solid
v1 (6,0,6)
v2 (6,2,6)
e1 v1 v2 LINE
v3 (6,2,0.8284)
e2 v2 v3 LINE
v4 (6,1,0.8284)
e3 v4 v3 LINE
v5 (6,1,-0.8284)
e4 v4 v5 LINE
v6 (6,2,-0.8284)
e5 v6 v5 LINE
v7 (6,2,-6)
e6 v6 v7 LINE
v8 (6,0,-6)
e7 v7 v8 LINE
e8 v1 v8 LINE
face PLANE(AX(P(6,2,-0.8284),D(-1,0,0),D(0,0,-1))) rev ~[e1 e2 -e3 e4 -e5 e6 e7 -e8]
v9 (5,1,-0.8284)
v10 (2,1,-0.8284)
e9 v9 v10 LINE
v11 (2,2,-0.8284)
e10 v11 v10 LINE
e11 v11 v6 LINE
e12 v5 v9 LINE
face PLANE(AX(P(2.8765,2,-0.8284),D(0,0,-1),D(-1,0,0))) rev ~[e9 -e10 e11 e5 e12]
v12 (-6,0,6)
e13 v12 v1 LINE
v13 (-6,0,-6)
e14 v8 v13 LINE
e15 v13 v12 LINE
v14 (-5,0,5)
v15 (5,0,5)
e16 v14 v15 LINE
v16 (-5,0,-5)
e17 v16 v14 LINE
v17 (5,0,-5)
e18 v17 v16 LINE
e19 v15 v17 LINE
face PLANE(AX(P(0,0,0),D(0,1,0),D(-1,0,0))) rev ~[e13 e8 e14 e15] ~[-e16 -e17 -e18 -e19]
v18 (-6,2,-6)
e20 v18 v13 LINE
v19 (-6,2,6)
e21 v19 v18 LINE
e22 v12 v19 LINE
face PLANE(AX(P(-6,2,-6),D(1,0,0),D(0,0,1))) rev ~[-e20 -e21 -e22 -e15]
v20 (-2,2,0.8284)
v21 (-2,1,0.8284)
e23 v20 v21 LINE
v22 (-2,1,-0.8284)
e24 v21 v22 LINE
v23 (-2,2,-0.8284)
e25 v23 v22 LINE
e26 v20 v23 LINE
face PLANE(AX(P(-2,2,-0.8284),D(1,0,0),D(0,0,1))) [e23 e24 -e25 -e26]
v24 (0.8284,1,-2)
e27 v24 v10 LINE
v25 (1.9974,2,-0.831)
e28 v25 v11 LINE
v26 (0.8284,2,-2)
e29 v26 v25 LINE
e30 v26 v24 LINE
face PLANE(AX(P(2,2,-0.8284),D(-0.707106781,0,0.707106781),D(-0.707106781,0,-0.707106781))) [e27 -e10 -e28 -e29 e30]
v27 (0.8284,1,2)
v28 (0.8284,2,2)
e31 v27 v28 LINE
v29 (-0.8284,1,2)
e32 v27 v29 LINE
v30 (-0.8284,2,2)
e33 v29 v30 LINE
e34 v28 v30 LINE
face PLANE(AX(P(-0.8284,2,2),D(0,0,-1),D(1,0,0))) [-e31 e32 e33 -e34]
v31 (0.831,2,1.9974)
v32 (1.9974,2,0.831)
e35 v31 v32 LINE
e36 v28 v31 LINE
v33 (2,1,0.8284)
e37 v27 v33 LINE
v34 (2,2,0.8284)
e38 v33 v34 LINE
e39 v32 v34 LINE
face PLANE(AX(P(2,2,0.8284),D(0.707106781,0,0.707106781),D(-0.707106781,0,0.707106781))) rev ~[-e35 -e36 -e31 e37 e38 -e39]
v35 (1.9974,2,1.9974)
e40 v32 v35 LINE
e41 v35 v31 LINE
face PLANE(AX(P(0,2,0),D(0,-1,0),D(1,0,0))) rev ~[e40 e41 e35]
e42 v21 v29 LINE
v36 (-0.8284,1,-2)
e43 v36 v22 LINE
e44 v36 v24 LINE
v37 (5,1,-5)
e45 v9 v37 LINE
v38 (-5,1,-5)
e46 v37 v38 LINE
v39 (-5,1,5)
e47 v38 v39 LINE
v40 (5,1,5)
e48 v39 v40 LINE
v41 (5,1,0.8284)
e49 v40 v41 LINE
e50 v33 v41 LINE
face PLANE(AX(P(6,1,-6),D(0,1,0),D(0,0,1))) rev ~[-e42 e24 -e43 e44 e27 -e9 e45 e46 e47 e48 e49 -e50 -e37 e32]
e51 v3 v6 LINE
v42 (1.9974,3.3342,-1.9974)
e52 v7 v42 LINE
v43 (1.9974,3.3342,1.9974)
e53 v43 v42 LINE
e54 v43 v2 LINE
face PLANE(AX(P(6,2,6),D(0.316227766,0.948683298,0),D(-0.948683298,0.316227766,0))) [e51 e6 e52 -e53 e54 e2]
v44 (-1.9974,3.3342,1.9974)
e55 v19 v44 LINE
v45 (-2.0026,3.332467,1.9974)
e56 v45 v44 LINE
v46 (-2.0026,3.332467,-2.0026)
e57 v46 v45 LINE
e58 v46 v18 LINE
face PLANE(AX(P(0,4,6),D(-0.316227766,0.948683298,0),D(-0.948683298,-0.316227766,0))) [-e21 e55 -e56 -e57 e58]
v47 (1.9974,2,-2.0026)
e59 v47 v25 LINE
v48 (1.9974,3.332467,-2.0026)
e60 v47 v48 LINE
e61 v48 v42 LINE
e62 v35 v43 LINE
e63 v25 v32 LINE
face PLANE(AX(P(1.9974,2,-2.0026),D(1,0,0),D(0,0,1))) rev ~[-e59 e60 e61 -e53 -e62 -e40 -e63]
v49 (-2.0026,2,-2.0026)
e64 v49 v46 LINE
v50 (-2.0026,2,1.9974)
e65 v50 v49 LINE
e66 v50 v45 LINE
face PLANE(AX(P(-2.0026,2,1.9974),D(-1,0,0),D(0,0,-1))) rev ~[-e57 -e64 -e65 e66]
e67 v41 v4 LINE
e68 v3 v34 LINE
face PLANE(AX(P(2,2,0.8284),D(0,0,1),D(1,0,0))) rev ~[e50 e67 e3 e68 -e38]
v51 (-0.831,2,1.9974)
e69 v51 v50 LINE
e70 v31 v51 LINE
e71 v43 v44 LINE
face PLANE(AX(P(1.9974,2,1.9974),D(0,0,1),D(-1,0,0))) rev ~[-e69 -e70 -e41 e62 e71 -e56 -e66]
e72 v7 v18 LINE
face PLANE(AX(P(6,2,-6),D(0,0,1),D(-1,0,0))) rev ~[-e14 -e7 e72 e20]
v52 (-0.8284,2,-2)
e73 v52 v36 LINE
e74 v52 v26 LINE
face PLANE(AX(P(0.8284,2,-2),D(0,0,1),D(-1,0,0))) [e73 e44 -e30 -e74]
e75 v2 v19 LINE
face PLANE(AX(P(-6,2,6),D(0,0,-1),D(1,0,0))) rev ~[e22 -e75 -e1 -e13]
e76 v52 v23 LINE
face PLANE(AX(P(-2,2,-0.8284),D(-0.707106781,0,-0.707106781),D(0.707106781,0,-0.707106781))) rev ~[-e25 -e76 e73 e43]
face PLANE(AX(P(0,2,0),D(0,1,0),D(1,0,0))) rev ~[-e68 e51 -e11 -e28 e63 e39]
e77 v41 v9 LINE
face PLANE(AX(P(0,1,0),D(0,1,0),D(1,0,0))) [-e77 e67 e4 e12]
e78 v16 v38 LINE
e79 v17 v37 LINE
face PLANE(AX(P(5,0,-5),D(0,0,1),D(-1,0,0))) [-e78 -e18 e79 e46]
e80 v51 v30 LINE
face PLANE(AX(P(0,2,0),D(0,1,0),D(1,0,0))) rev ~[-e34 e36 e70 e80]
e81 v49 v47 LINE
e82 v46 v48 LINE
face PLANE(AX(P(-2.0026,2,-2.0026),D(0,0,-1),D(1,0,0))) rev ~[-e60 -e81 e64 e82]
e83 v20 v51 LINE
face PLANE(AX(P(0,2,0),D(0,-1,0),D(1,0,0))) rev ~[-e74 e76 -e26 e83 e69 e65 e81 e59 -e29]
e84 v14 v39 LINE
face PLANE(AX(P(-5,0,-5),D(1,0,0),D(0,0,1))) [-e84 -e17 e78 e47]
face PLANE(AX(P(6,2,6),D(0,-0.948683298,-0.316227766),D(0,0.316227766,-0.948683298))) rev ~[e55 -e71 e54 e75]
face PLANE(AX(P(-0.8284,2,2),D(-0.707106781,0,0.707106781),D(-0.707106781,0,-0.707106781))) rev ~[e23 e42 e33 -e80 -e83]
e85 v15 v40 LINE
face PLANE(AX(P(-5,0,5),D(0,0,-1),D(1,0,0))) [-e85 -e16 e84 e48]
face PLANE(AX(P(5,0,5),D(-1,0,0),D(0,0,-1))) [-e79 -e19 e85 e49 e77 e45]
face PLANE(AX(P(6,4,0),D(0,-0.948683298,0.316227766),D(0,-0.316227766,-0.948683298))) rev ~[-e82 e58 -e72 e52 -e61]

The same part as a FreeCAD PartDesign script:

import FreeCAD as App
import Part
import Sketcher
Q = App.Units.Quantity

doc = App.newDocument("Part")
params = doc.addObject("Spreadsheet::Sheet", "Params")
for row, (alias, value) in enumerate([
    ("sketch1_width", "12 mm"),
    ("sketch1_width2", "10 mm"),
    ("pad1_length", "2 mm"),
    ("sketch2_width", "1 mm"),
    ("sketch2_height", "12 mm"),
    ("pad2_length", "11.5 mm"),
    ("pocket2_length", "1 mm"),
    ("sketch5_width", "12 mm"),
    ("pad3_length", "25 mm"),
    ("pocket3_length", "23.25 mm"),
    ("pocket4_length", "41.75 mm"),
    ("sketch8_width", "4 mm"),
    ("pocket5_length", "105 mm"),
], start=1):
    params.set(f"A{row}", alias)
    params.set(f"B{row}", "=" + value)
    params.setAlias(f"B{row}", alias)

body = doc.addObject("PartDesign::Body", "Body")

# Sketch on XZ plane
sketch1 = body.newObject("Sketcher::SketchObject", "Sketch")
sketch1.AttachmentSupport = (doc.getObject("XZ_Plane"), [""])
sketch1.MapMode = "FlatFace"
sketch1.addGeometry([
    Part.LineSegment(App.Vector(-6, -6, 0), App.Vector(-6, 6, 0)),  # 0
    Part.LineSegment(App.Vector(-6, 6, 0), App.Vector(6, 6, 0)),  # 1
    Part.LineSegment(App.Vector(6, 6, 0), App.Vector(6, -6, 0)),  # 2
    Part.LineSegment(App.Vector(6, -6, 0), App.Vector(-6, -6, 0)),  # 3
    Part.LineSegment(App.Vector(5, 5, 0), App.Vector(-5, 5, 0)),  # 4
    Part.LineSegment(App.Vector(-5, 5, 0), App.Vector(-5, -5, 0)),  # 5
    Part.LineSegment(App.Vector(-5, -5, 0), App.Vector(5, -5, 0)),  # 6
    Part.LineSegment(App.Vector(5, -5, 0), App.Vector(5, 5, 0)),  # 7
], False)
sketch1.addConstraint([
    Sketcher.Constraint("Coincident", 0, 2, 1, 1),
    Sketcher.Constraint("Coincident", 1, 2, 2, 1),
    Sketcher.Constraint("Coincident", 2, 2, 3, 1),
    Sketcher.Constraint("Coincident", 3, 2, 0, 1),
    Sketcher.Constraint("Coincident", 4, 2, 5, 1),
    Sketcher.Constraint("Coincident", 5, 2, 6, 1),
    Sketcher.Constraint("Coincident", 6, 2, 7, 1),
    Sketcher.Constraint("Coincident", 7, 2, 4, 1),
    Sketcher.Constraint("Vertical", 0),
    Sketcher.Constraint("Horizontal", 1),
    Sketcher.Constraint("Vertical", 2),
    Sketcher.Constraint("Horizontal", 3),
    Sketcher.Constraint("Horizontal", 4),
    Sketcher.Constraint("Vertical", 5),
    Sketcher.Constraint("Horizontal", 6),
    Sketcher.Constraint("Vertical", 7),
    Sketcher.Constraint("Symmetric", 0, 2, 2, 2, -1, 1),
    Sketcher.Constraint("Symmetric", 4, 2, 6, 2, -1, 1),
    Sketcher.Constraint("Equal", 3, 0),
    Sketcher.Constraint("Equal", 6, 5),
    Sketcher.Constraint("DistanceX", 1, 1, 1, 2, Q("12 mm")),
    Sketcher.Constraint("DistanceX", 4, 2, 4, 1, Q("10 mm")),
])
sketch1.setExpression("Constraints[20]", "Params.sketch1_width")
sketch1.setExpression("Constraints[21]", "Params.sketch1_width2")
pad1 = body.newObject("PartDesign::Pad", "Pad")
pad1.Profile = sketch1
pad1.setExpression("Length", "Params.pad1_length")
pad1.Reversed = True

# Sketch on YZ plane
sketch2 = body.newObject("Sketcher::SketchObject", "Sketch001")
sketch2.AttachmentSupport = (doc.getObject("YZ_Plane"), [""])
sketch2.MapMode = "FlatFace"
sketch2.AttachmentOffset = App.Placement(App.Vector(0, 0, 6), App.Rotation())
sketch2.addGeometry([
    Part.LineSegment(App.Vector(2, 6, 0), App.Vector(1, 6, 0)),
    Part.LineSegment(App.Vector(1, 6, 0), App.Vector(1, -6, 0)),
    Part.LineSegment(App.Vector(1, -6, 0), App.Vector(2, -6, 0)),
    Part.LineSegment(App.Vector(2, -6, 0), App.Vector(2, 6, 0)),
], False)
sketch2.addConstraint([
    Sketcher.Constraint("Coincident", 0, 2, 1, 1),
    Sketcher.Constraint("Coincident", 1, 2, 2, 1),
    Sketcher.Constraint("Coincident", 2, 2, 3, 1),
    Sketcher.Constraint("Coincident", 3, 2, 0, 1),
    Sketcher.Constraint("Horizontal", 0),
    Sketcher.Constraint("Vertical", 1),
    Sketcher.Constraint("Horizontal", 2),
    Sketcher.Constraint("Vertical", 3),
    Sketcher.Constraint("DistanceX", 0, 2, 0, 1, Q("1 mm")),
    Sketcher.Constraint("DistanceY", 1, 2, 1, 1, Q("12 mm")),
    Sketcher.Constraint("DistanceX", -1, 1, 0, 2, Q("1 mm")),
    Sketcher.Constraint("DistanceY", -1, 1, 0, 2, Q("6 mm")),
])
sketch2.setExpression("Constraints[8]", "Params.sketch2_width")
sketch2.setExpression("Constraints[9]", "Params.sketch2_height")
pad2 = body.newObject("PartDesign::Pad", "Pad001")
pad2.Profile = sketch2
pad2.setExpression("Length", "Params.pad2_length")
pad2.Reversed = True

# Sketch on XZ plane
sketch3 = body.newObject("Sketcher::SketchObject", "Sketch002")
sketch3.AttachmentSupport = (doc.getObject("XZ_Plane"), [""])
sketch3.MapMode = "FlatFace"
sketch3.AttachmentOffset = App.Placement(App.Vector(0, 0, -2), App.Rotation())
sketch3.addGeometry([
    Part.LineSegment(App.Vector(-2, 0.8, 0), App.Vector(-0.8, 2, 0)),  # 0
    Part.LineSegment(App.Vector(-0.8, 2, 0), App.Vector(0.8, 2, 0)),  # 1
    Part.LineSegment(App.Vector(0.8, 2, 0), App.Vector(2, 0.8, 0)),  # 2
    Part.LineSegment(App.Vector(2, 0.8, 0), App.Vector(2, -0.8, 0)),  # 3
    Part.LineSegment(App.Vector(2, -0.8, 0), App.Vector(0.8, -2, 0)),  # 4
    Part.LineSegment(App.Vector(0.8, -2, 0), App.Vector(-0.8, -2, 0)),  # 5
    Part.LineSegment(App.Vector(-0.8, -2, 0), App.Vector(-2, -0.8, 0)),  # 6
    Part.LineSegment(App.Vector(-2, -0.8, 0), App.Vector(-2, 0.8, 0)),  # 7
], False)
sketch3.addConstraint([
    Sketcher.Constraint("Coincident", 0, 2, 1, 1),
    Sketcher.Constraint("Coincident", 1, 2, 2, 1),
    Sketcher.Constraint("Coincident", 2, 2, 3, 1),
    Sketcher.Constraint("Coincident", 3, 2, 4, 1),
    Sketcher.Constraint("Coincident", 4, 2, 5, 1),
    Sketcher.Constraint("Coincident", 5, 2, 6, 1),
    Sketcher.Constraint("Coincident", 6, 2, 7, 1),
    Sketcher.Constraint("Coincident", 7, 2, 0, 1),
    Sketcher.Constraint("Horizontal", 1),
    Sketcher.Constraint("Vertical", 3),
    Sketcher.Constraint("Horizontal", 5),
    Sketcher.Constraint("Vertical", 7),
    Sketcher.Constraint("Symmetric", 0, 2, 4, 2, -1, 1),
    Sketcher.Constraint("Symmetric", 2, 2, 6, 2, -1, 1),
    Sketcher.Constraint("Perpendicular", 0, 2),
    Sketcher.Constraint("Perpendicular", 2, 4),
    Sketcher.Constraint("Perpendicular", 4, 6),
    Sketcher.Constraint("Horizontal", 3, 2, 6, 2),
    Sketcher.Constraint("Vertical", 1, 2, 4, 2),
    Sketcher.Constraint("Equal", 5, 3),
    Sketcher.Constraint("DistanceY", -1, 1, 0, 2, Q("2 mm")),
    Sketcher.Constraint("Distance", 0, Q("1.657 mm")),
])
pocket1 = body.newObject("PartDesign::Pocket", "Pocket")
pocket1.Profile = sketch3
pocket1.Type = "ThroughAll"
pocket1.Midplane = True

# Sketch on XZ plane
sketch4 = body.newObject("Sketcher::SketchObject", "Sketch003")
sketch4.AttachmentSupport = (doc.getObject("XZ_Plane"), [""])
sketch4.MapMode = "FlatFace"
sketch4.AttachmentOffset = App.Placement(App.Vector(0, 0, -2), App.Rotation())
sketch4.addGeometry([
    Part.LineSegment(App.Vector(2, -0.8, 0), App.Vector(2, 0.8, 0)),
    Part.LineSegment(App.Vector(2, 0.8, 0), App.Vector(7.5, 0.8, 0)),
    Part.LineSegment(App.Vector(7.5, 0.8, 0), App.Vector(7.5, -0.8, 0)),
    Part.LineSegment(App.Vector(7.5, -0.8, 0), App.Vector(2, -0.8, 0)),
], False)
sketch4.addConstraint([
    Sketcher.Constraint("Coincident", 0, 2, 1, 1),
    Sketcher.Constraint("Coincident", 1, 2, 2, 1),
    Sketcher.Constraint("Coincident", 2, 2, 3, 1),
    Sketcher.Constraint("Coincident", 3, 2, 0, 1),
    Sketcher.Constraint("Vertical", 0),
    Sketcher.Constraint("Horizontal", 1),
    Sketcher.Constraint("Vertical", 2),
    Sketcher.Constraint("Horizontal", 3),
    Sketcher.Constraint("DistanceX", -1, 1, 0, 2, Q("2 mm")),
    Sketcher.Constraint("DistanceX", 1, 1, 1, 2, Q("5.5124 mm")),
    Sketcher.Constraint("DistanceY", 0, 1, 0, 2, Q("1.6568 mm")),
    Sketcher.Constraint("DistanceY", -1, 1, 0, 2, Q("0.8284 mm")),
])
pocket2 = body.newObject("PartDesign::Pocket", "Pocket001")
pocket2.Profile = sketch4
pocket2.setExpression("Length", "Params.pocket2_length")
pocket2.Reversed = True

# Sketch on XZ plane
sketch5 = body.newObject("Sketcher::SketchObject", "Sketch004")
sketch5.AttachmentSupport = (doc.getObject("XZ_Plane"), [""])
sketch5.MapMode = "FlatFace"
sketch5.AttachmentOffset = App.Placement(App.Vector(0, 0, -2), App.Rotation())
sketch5.addGeometry([
    Part.LineSegment(App.Vector(-6, -6, 0), App.Vector(-6, 6, 0)),
    Part.LineSegment(App.Vector(-6, 6, 0), App.Vector(6, 6, 0)),
    Part.LineSegment(App.Vector(6, 6, 0), App.Vector(6, -6, 0)),
    Part.LineSegment(App.Vector(6, -6, 0), App.Vector(-6, -6, 0)),
], False)
sketch5.addConstraint([
    Sketcher.Constraint("Coincident", 0, 2, 1, 1),
    Sketcher.Constraint("Coincident", 1, 2, 2, 1),
    Sketcher.Constraint("Coincident", 2, 2, 3, 1),
    Sketcher.Constraint("Coincident", 3, 2, 0, 1),
    Sketcher.Constraint("Vertical", 0),
    Sketcher.Constraint("Horizontal", 1),
    Sketcher.Constraint("Vertical", 2),
    Sketcher.Constraint("Horizontal", 3),
    Sketcher.Constraint("Symmetric", 0, 2, 2, 2, -1, 1),
    Sketcher.Constraint("Equal", 3, 0),
    Sketcher.Constraint("DistanceX", 1, 1, 1, 2, Q("12 mm")),
])
sketch5.setExpression("Constraints[10]", "Params.sketch5_width")
pad3 = body.newObject("PartDesign::Pad", "Pad002")
pad3.Profile = sketch5
pad3.setExpression("Length", "Params.pad3_length")
pad3.Reversed = True

# Sketch on YZ plane
sketch6 = body.newObject("Sketcher::SketchObject", "Sketch005")
sketch6.AttachmentSupport = (doc.getObject("YZ_Plane"), [""])
sketch6.MapMode = "FlatFace"
sketch6.AttachmentOffset = App.Placement(App.Vector(0, 0, 6), App.Rotation())
sketch6.addGeometry([
    Part.LineSegment(App.Vector(2, 8.5, 0), App.Vector(2, 6, 0)),  # 0
    Part.LineSegment(App.Vector(2, 6, 0), App.Vector(4, 0, 0)),  # 1
    Part.LineSegment(App.Vector(4, 0, 0), App.Vector(2, -6, 0)),  # 2
    Part.LineSegment(App.Vector(2, -6, 0), App.Vector(28.7, -6, 0)),  # 3
    Part.LineSegment(App.Vector(28.7, -6, 0), App.Vector(28.7, 8.5, 0)),  # 4
    Part.LineSegment(App.Vector(28.7, 8.5, 0), App.Vector(2, 8.5, 0)),  # 5
], False)
sketch6.addConstraint([
    Sketcher.Constraint("Coincident", 0, 2, 1, 1),
    Sketcher.Constraint("Coincident", 1, 2, 2, 1),
    Sketcher.Constraint("Coincident", 2, 2, 3, 1),
    Sketcher.Constraint("Coincident", 3, 2, 4, 1),
    Sketcher.Constraint("Coincident", 4, 2, 5, 1),
    Sketcher.Constraint("Coincident", 5, 2, 0, 1),
    Sketcher.Constraint("Vertical", 0),
    Sketcher.Constraint("Horizontal", 3),
    Sketcher.Constraint("Vertical", 4),
    Sketcher.Constraint("Horizontal", 5),
    Sketcher.Constraint("Symmetric", 0, 2, 2, 2, -1),
    Sketcher.Constraint("PointOnObject", 1, 2, -1),
    Sketcher.Constraint("DistanceX", -1, 1, 1, 2, Q("4 mm")),
    Sketcher.Constraint("DistanceX", -1, 1, 0, 2, Q("2 mm")),
    Sketcher.Constraint("DistanceY", -1, 1, 0, 2, Q("6 mm")),
    Sketcher.Constraint("DistanceX", 3, 1, 3, 2, Q("26.669 mm")),
    Sketcher.Constraint("DistanceY", 0, 2, 0, 1, Q("2.469 mm")),
])
pocket3 = body.newObject("PartDesign::Pocket", "Pocket002")
pocket3.Profile = sketch6
pocket3.setExpression("Length", "Params.pocket3_length")

# Sketch on XY plane
sketch7 = body.newObject("Sketcher::SketchObject", "Sketch006")
sketch7.AttachmentSupport = (doc.getObject("XY_Plane"), [""])
sketch7.MapMode = "FlatFace"
sketch7.AttachmentOffset = App.Placement(App.Vector(0, 0, 6), App.Rotation())
sketch7.addGeometry([
    Part.LineSegment(App.Vector(-6, 2, 0), App.Vector(0, 4, 0)),  # 0
    Part.LineSegment(App.Vector(0, 4, 0), App.Vector(6, 2, 0)),  # 1
    Part.LineSegment(App.Vector(6, 2, 0), App.Vector(7.7, 2, 0)),  # 2
    Part.LineSegment(App.Vector(7.7, 2, 0), App.Vector(7.7, 5, 0)),  # 3
    Part.LineSegment(App.Vector(7.7, 5, 0), App.Vector(-6, 5, 0)),  # 4
    Part.LineSegment(App.Vector(-6, 5, 0), App.Vector(-6, 2, 0)),  # 5
], False)
sketch7.addConstraint([
    Sketcher.Constraint("Coincident", 0, 2, 1, 1),
    Sketcher.Constraint("Coincident", 1, 2, 2, 1),
    Sketcher.Constraint("Coincident", 2, 2, 3, 1),
    Sketcher.Constraint("Coincident", 3, 2, 4, 1),
    Sketcher.Constraint("Coincident", 4, 2, 5, 1),
    Sketcher.Constraint("Coincident", 5, 2, 0, 1),
    Sketcher.Constraint("Horizontal", 2),
    Sketcher.Constraint("Vertical", 3),
    Sketcher.Constraint("Horizontal", 4),
    Sketcher.Constraint("Vertical", 5),
    Sketcher.Constraint("Symmetric", 1, 2, 5, 2, -2),
    Sketcher.Constraint("PointOnObject", 0, 2, -2),
    Sketcher.Constraint("DistanceY", -1, 1, 0, 2, Q("4 mm")),
    Sketcher.Constraint("DistanceX", -1, 1, 1, 2, Q("6 mm")),
    Sketcher.Constraint("DistanceY", -1, 1, 1, 2, Q("2 mm")),
    Sketcher.Constraint("DistanceX", 2, 1, 2, 2, Q("1.6732 mm")),
    Sketcher.Constraint("DistanceY", 3, 1, 3, 2, Q("2.9606 mm")),
])
pocket4 = body.newObject("PartDesign::Pocket", "Pocket003")
pocket4.Profile = sketch7
pocket4.setExpression("Length", "Params.pocket4_length")

# Sketch on XZ plane
sketch8 = body.newObject("Sketcher::SketchObject", "Sketch007")
sketch8.AttachmentSupport = (doc.getObject("XZ_Plane"), [""])
sketch8.MapMode = "FlatFace"
sketch8.AttachmentOffset = App.Placement(App.Vector(0, 0, -2), App.Rotation())
sketch8.addGeometry([
    Part.LineSegment(App.Vector(2, -2, 0), App.Vector(2, 2, 0)),
    Part.LineSegment(App.Vector(2, 2, 0), App.Vector(-2, 2, 0)),
    Part.LineSegment(App.Vector(-2, 2, 0), App.Vector(-2, -2, 0)),
    Part.LineSegment(App.Vector(-2, -2, 0), App.Vector(2, -2, 0)),
], False)
sketch8.addConstraint([
    Sketcher.Constraint("Coincident", 0, 2, 1, 1),
    Sketcher.Constraint("Coincident", 1, 2, 2, 1),
    Sketcher.Constraint("Coincident", 2, 2, 3, 1),
    Sketcher.Constraint("Coincident", 3, 2, 0, 1),
    Sketcher.Constraint("Vertical", 0),
    Sketcher.Constraint("Horizontal", 1),
    Sketcher.Constraint("Vertical", 2),
    Sketcher.Constraint("Horizontal", 3),
    Sketcher.Constraint("Equal", 3, 0),
    Sketcher.Constraint("DistanceX", 1, 2, 1, 1, Q("4 mm")),
    Sketcher.Constraint("DistanceX", -1, 1, 0, 2, Q("1.9974 mm")),
    Sketcher.Constraint("DistanceY", -1, 1, 0, 2, Q("1.9974 mm")),
])
sketch8.setExpression("Constraints[9]", "Params.sketch8_width")
pocket5 = body.newObject("PartDesign::Pocket", "Pocket004")
pocket5.Profile = sketch8
pocket5.setExpression("Length", "Params.pocket5_length")

doc.recompute()
